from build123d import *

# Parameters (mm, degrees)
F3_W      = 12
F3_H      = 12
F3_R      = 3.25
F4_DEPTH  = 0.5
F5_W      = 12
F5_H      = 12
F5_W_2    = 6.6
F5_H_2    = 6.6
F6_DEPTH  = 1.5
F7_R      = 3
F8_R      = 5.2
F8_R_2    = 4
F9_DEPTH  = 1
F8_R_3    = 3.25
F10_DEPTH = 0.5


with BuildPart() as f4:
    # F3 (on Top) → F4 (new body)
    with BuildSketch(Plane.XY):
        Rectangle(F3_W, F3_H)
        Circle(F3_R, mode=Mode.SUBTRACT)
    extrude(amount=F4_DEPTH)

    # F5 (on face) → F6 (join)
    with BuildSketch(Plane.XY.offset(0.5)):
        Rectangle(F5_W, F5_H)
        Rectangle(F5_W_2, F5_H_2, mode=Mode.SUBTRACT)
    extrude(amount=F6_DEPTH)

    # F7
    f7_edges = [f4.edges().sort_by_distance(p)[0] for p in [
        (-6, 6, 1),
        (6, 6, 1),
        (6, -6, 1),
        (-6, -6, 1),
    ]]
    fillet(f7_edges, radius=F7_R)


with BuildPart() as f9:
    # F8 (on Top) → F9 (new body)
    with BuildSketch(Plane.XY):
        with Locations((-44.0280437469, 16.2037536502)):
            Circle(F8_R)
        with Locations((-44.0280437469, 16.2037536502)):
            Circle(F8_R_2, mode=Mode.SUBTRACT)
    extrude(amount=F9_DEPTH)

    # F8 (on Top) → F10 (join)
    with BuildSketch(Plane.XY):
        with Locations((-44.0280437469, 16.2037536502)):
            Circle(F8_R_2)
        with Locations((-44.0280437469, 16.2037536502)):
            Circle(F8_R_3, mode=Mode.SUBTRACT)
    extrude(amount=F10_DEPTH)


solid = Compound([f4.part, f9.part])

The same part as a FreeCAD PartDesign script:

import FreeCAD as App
import Part
import Sketcher
from FreeCAD import Vector


def edges_at(feature, points):
    """Names of the edges that pass closest to the given points."""
    edges = feature.Shape.Edges
    near = lambda p: min(range(len(edges)), key=lambda i: edges[i].distToShape(Part.Vertex(*p))[0])
    return sorted({f"Edge{near(p) + 1}" for p in points})


def add_polygon(sketch, points):
    """Adds a closed chain of lines whose ends are joined by coincident constraints."""
    first, n = sketch.GeometryCount, len(points)
    for a, b in zip(points, points[1:] + points[:1]):
        sketch.addGeometry(Part.LineSegment(App.Vector(*a, 0), App.Vector(*b, 0)), False)
    for i in range(n):
        sketch.addConstraint(Sketcher.Constraint("Coincident", first + i, 2, first + (i + 1) % n, 1))

doc = App.newDocument("Part")
body = doc.addObject("PartDesign::Body", "Body")

# Sketch on XY plane
sketch1 = body.newObject("Sketcher::SketchObject", "Sketch")
sketch1.AttachmentSupport = (doc.getObject("XY_Plane"), [""])
sketch1.MapMode = "FlatFace"
add_polygon(sketch1, [(-6, 6), (-6, -6), (6, -6), (6, 6)])  # lines 0-3
sketch1.addGeometry(Part.Circle(Vector(0, 0, 0), Vector(0, 0, 1), 3.25), False)  # 4
sketch1.addConstraint([
    Sketcher.Constraint("Vertical", 0),
    Sketcher.Constraint("Horizontal", 1),
    Sketcher.Constraint("Vertical", 2),
    Sketcher.Constraint("Horizontal", 3),
    Sketcher.Constraint("Coincident", 4, 3, -1, 1),
    Sketcher.Constraint("Symmetric", 0, 2, 2, 2, -1, 1),
    Sketcher.Constraint("Equal", 3, 0),
    Sketcher.Constraint("Diameter", 4, 6.5),
    Sketcher.Constraint("DistanceX", 1, 1, 1, 2, 12.0),
])
pad1 = body.newObject("PartDesign::Pad", "Pad")
pad1.Profile = sketch1
pad1.Length = 0.5

# Sketch on XY plane
sketch2 = body.newObject("Sketcher::SketchObject", "Sketch001")
sketch2.AttachmentSupport = (doc.getObject("XY_Plane"), [""])
sketch2.MapMode = "FlatFace"
sketch2.AttachmentOffset = App.Placement(Vector(0, 0, 0.5), App.Rotation())
add_polygon(sketch2, [(-6, 6), (-6, -6), (6, -6), (6, 6)])  # lines 0-3
add_polygon(sketch2, [(3.3, -3.3), (-3.3, -3.3), (-3.3, 3.3), (3.3, 3.3)])  # lines 4-7
sketch2.addConstraint([
    Sketcher.Constraint("Vertical", 0),
    Sketcher.Constraint("Horizontal", 1),
    Sketcher.Constraint("Vertical", 2),
    Sketcher.Constraint("Horizontal", 3),
    Sketcher.Constraint("Horizontal", 4),
    Sketcher.Constraint("Vertical", 5),
    Sketcher.Constraint("Horizontal", 6),
    Sketcher.Constraint("Vertical", 7),
    Sketcher.Constraint("Symmetric", 0, 2, 2, 2, -1, 1),
    Sketcher.Constraint("Symmetric", 4, 2, 6, 2, -1, 1),
    Sketcher.Constraint("Equal", 3, 0),
    Sketcher.Constraint("Equal", 6, 5),
    Sketcher.Constraint("DistanceX", 1, 1, 1, 2, 12.0),
    Sketcher.Constraint("DistanceX", 4, 2, 4, 1, 6.6),
])
pad2 = body.newObject("PartDesign::Pad", "Pad001")
pad2.Profile = sketch2
pad2.Length = 1.5
doc.recompute()

fillet = body.newObject("PartDesign::Fillet", "Fillet")
fillet.Base = (pad2, edges_at(pad2, [
    (-6, 6, 1),
    (6, 6, 1),
    (6, -6, 1),
    (-6, -6, 1),
]))
fillet.Radius = 3
body2 = doc.addObject("PartDesign::Body", "Body001")

# Sketch on XY plane
sketch3 = body2.newObject("Sketcher::SketchObject", "Sketch002")
sketch3.AttachmentSupport = (doc.getObject("XY_Plane001"), [""])
sketch3.MapMode = "FlatFace"
sketch3.addGeometry([
    Part.Circle(Vector(-44.028044, 16.203754, 0), Vector(0, 0, 1), 5.2),
    Part.Circle(Vector(-44.028044, 16.203754, 0), Vector(0, 0, 1), 4),
], False)
sketch3.addConstraint([
    Sketcher.Constraint("Coincident", 1, 3, 0, 3),
    Sketcher.Constraint("Diameter", 1, 8.0),
    Sketcher.Constraint("Diameter", 0, 10.4),
    Sketcher.Constraint("DistanceX", 0, 3, -1, 1, 44.028044),
    Sketcher.Constraint("DistanceY", -1, 1, 0, 3, 16.203754),
])
pad3 = body2.newObject("PartDesign::Pad", "Pad002")
pad3.Profile = sketch3
pad3.Length = 1

# Sketch on XY plane
sketch4 = body2.newObject("Sketcher::SketchObject", "Sketch003")
sketch4.AttachmentSupport = (doc.getObject("XY_Plane001"), [""])
sketch4.MapMode = "FlatFace"
sketch4.addGeometry([
    Part.Circle(Vector(-44.028044, 16.203754, 0), Vector(0, 0, 1), 4),
    Part.Circle(Vector(-44.028044, 16.203754, 0), Vector(0, 0, 1), 3.25),
], False)
sketch4.addConstraint([
    Sketcher.Constraint("Coincident", 1, 3, 0, 3),
    Sketcher.Constraint("Diameter", 0, 8.0),
    Sketcher.Constraint("Diameter", 1, 6.5),
    Sketcher.Constraint("DistanceX", 0, 3, -1, 1, 44.028044),
    Sketcher.Constraint("DistanceY", -1, 1, 0, 3, 16.203754),
])
pad4 = body2.newObject("PartDesign::Pad", "Pad003")
pad4.Profile = sketch4
pad4.Length = 0.5

doc.recompute()
